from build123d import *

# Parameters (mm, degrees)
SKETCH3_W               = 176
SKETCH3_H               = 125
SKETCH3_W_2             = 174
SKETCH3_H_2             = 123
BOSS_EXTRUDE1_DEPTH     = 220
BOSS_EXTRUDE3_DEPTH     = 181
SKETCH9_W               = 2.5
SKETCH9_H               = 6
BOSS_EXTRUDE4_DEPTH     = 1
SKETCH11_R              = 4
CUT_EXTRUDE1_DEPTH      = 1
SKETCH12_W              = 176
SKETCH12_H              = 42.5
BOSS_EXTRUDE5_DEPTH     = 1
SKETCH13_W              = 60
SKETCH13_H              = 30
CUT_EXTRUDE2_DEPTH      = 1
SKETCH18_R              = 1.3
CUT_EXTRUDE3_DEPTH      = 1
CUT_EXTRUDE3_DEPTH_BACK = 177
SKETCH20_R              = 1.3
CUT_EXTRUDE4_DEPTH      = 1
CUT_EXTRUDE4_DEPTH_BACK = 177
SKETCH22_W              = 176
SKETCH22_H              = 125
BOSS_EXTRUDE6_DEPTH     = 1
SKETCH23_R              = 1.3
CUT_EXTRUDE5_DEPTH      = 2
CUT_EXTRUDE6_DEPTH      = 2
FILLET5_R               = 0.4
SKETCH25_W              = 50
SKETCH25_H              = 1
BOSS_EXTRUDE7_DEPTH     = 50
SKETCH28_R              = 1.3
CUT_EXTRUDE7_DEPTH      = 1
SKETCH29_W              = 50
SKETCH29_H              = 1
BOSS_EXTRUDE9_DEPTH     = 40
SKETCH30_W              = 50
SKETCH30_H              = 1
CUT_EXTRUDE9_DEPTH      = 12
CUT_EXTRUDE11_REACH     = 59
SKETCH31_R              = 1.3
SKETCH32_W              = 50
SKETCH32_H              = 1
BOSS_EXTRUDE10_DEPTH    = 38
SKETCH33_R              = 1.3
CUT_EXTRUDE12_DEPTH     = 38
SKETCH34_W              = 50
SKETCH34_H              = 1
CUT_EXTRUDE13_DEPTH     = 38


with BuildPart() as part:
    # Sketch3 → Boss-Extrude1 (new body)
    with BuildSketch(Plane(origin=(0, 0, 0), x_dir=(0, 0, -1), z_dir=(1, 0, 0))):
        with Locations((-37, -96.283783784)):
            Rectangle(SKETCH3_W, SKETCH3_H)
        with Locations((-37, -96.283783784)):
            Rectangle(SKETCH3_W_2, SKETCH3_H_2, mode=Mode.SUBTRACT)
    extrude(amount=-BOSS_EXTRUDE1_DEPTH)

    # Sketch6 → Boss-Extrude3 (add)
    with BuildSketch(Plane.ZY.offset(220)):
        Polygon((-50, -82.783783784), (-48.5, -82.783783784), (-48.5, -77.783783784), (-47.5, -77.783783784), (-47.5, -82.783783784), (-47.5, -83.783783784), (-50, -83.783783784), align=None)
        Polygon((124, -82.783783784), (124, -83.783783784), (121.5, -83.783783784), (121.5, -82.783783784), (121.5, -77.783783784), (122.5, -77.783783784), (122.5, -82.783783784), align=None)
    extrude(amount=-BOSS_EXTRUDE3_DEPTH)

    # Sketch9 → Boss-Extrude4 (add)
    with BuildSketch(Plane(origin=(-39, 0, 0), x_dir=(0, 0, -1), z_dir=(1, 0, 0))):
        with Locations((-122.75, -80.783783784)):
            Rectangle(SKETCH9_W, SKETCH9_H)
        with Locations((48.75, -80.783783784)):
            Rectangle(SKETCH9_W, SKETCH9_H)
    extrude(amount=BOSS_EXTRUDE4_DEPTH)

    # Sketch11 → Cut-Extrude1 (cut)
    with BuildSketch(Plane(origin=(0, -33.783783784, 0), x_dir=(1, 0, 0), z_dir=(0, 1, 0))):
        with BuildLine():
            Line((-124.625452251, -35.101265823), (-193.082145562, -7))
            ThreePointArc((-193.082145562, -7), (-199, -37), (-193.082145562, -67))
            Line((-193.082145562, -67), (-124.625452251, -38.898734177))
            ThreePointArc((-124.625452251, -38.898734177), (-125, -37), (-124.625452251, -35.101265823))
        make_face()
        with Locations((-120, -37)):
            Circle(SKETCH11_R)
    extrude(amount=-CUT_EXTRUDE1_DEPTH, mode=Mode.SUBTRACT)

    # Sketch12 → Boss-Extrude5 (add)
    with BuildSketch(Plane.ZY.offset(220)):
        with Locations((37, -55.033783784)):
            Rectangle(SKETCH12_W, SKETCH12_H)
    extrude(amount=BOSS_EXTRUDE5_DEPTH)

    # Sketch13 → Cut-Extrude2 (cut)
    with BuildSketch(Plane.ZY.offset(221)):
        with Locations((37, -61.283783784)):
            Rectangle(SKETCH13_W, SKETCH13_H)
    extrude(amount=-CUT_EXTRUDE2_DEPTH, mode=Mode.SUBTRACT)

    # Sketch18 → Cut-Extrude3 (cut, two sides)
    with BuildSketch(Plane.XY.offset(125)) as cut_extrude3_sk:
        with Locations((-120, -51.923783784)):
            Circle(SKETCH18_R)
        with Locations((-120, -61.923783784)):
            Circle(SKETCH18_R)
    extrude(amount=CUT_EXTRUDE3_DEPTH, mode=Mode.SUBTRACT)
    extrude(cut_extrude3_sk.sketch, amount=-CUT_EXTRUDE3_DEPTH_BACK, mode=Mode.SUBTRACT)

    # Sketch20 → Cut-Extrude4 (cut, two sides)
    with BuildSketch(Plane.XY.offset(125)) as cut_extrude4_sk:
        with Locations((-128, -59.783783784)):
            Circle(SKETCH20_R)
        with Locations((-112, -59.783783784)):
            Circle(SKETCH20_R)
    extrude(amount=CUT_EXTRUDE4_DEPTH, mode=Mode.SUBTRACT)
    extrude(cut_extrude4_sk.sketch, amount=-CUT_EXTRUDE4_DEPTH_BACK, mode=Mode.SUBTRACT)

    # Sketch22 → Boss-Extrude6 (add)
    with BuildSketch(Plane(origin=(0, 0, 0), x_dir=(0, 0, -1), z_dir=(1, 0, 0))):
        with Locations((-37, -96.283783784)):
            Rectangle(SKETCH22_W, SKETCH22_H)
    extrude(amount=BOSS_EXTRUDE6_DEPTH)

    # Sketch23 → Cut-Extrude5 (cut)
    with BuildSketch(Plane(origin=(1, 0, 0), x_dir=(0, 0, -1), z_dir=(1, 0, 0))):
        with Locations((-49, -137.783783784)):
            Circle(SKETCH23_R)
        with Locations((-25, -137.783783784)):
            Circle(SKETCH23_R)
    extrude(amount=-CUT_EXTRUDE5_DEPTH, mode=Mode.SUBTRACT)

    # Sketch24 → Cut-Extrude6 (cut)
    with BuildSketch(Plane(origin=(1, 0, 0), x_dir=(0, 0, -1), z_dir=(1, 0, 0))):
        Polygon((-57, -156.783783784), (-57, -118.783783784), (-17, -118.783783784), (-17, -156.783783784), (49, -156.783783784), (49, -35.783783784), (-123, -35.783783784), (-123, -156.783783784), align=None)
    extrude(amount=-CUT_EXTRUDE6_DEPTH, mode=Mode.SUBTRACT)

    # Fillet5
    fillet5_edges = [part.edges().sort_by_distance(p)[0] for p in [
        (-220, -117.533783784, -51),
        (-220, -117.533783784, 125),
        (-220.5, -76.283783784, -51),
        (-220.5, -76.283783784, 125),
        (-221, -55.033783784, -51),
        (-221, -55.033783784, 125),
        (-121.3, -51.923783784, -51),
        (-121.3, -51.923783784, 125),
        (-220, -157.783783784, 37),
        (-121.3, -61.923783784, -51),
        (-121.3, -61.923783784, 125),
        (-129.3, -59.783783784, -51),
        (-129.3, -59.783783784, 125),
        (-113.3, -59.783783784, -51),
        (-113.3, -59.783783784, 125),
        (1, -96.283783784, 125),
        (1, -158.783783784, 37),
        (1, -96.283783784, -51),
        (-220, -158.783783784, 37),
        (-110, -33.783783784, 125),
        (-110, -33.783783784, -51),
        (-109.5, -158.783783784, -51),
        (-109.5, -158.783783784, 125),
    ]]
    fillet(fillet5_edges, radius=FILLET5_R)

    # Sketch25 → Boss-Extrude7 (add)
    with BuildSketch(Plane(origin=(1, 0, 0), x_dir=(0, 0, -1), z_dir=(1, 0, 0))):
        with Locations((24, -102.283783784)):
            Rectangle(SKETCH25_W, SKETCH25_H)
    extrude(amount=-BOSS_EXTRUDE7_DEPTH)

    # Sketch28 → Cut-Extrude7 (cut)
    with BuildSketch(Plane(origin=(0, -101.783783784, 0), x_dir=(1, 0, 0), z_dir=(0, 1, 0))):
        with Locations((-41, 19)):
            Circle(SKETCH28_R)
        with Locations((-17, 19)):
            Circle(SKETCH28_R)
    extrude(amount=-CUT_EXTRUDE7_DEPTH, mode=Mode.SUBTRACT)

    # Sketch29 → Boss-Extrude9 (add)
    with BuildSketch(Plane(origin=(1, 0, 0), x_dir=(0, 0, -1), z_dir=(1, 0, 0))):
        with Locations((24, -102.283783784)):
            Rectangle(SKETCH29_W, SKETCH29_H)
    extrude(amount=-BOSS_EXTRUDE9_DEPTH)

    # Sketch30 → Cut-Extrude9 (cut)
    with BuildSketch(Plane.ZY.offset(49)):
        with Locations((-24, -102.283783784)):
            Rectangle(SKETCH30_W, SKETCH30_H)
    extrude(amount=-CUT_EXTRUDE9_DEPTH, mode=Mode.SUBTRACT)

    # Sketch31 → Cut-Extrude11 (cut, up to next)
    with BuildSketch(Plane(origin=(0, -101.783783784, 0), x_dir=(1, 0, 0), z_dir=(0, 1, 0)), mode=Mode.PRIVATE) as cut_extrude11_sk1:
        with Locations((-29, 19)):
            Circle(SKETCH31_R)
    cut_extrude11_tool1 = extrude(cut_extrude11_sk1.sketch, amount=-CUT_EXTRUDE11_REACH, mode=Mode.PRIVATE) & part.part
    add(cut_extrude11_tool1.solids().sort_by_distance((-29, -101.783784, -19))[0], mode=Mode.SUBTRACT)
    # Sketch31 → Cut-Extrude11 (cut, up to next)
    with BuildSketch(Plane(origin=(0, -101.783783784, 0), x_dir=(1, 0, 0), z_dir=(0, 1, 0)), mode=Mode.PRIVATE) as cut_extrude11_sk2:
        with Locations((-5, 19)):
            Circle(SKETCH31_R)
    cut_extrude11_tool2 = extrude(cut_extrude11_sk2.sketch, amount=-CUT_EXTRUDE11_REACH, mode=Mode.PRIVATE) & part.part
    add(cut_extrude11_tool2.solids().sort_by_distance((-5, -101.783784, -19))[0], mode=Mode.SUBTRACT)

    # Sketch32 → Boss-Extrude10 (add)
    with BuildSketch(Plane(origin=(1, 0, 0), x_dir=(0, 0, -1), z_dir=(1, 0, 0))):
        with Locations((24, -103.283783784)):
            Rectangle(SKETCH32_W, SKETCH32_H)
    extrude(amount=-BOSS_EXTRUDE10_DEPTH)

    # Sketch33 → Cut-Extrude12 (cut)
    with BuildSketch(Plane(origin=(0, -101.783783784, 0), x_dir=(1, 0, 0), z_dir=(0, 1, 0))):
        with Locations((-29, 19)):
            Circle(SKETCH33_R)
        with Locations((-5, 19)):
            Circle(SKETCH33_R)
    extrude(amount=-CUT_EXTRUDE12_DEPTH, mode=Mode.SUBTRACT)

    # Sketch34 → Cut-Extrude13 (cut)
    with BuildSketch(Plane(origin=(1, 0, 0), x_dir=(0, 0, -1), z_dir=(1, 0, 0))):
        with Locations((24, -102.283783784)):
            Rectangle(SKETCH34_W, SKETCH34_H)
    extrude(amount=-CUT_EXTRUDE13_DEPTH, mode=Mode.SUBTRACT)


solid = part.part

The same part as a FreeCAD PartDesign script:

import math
import FreeCAD as App
import Part
import Sketcher


def edges_at(feature, points):
    """Names of the edges that pass closest to the given points."""
    edges = feature.Shape.Edges
    near = lambda p: min(range(len(edges)), key=lambda i: edges[i].distToShape(Part.Vertex(*p))[0])
    return sorted({f"Edge{near(p) + 1}" for p in points})


def add_polygon(sketch, points):
    """Adds a closed chain of lines whose ends are joined by coincident constraints."""
    first, n = sketch.GeometryCount, len(points)
    for a, b in zip(points, points[1:] + points[:1]):
        sketch.addGeometry(Part.LineSegment(App.Vector(*a, 0), App.Vector(*b, 0)), False)
    for i in range(n):
        sketch.addConstraint(Sketcher.Constraint("Coincident", first + i, 2, first + (i + 1) % n, 1))

doc = App.newDocument("Part")
body = doc.addObject("PartDesign::Body", "Body")

sketch1 = doc.addObject("Sketcher::SketchObject", "Sketch")
body.addObject(sketch1)
sketch1.AttachmentSupport = (doc.YZ_Plane, [""])
sketch1.MapMode = "FlatFace"
add_polygon(sketch1, [(-34, 125), (-159, 125), (-159, -51), (-34, -51)])
add_polygon(sketch1, [(-158, -50), (-158, 124), (-35, 124), (-35, -50)])
sketch1.addConstraint(Sketcher.Constraint("Horizontal", 0))
sketch1.addConstraint(Sketcher.Constraint("Vertical", 1))
sketch1.addConstraint(Sketcher.Constraint("Horizontal", 2))
sketch1.addConstraint(Sketcher.Constraint("Vertical", 3))
sketch1.addConstraint(Sketcher.Constraint("Vertical", 4))
sketch1.addConstraint(Sketcher.Constraint("Horizontal", 5))
sketch1.addConstraint(Sketcher.Constraint("Vertical", 6))
sketch1.addConstraint(Sketcher.Constraint("Horizontal", 7))
sketch1.addConstraint(Sketcher.Constraint("DistanceX", 0, 2, 0, 1, 125.0))
sketch1.addConstraint(Sketcher.Constraint("DistanceX", 5, 1, 5, 2, 123.0))
sketch1.addConstraint(Sketcher.Constraint("DistanceY", 1, 2, 1, 1, 176.0))
sketch1.addConstraint(Sketcher.Constraint("DistanceY", 4, 1, 4, 2, 174.0))
sketch1.addConstraint(Sketcher.Constraint("DistanceY", -1, 1, 0, 2, 125.0))
sketch1.addConstraint(Sketcher.Constraint("DistanceY", -1, 1, 4, 2, 124.0))
sketch1.addConstraint(Sketcher.Constraint("DistanceX", 0, 2, 4, 2, 1.0))
sketch1.addConstraint(Sketcher.Constraint("DistanceX", 0, 2, -1, 1, 158.783784))
pad1 = doc.addObject("PartDesign::Pad", "Pad")
body.addObject(pad1)
pad1.Profile = sketch1
pad1.Length = 220
pad1.Reversed = True

sketch2 = doc.addObject("Sketcher::SketchObject", "Sketch001")
body.addObject(sketch2)
sketch2.AttachmentSupport = (doc.YZ_Plane, [""])
sketch2.MapMode = "FlatFace"
sketch2.AttachmentOffset = App.Placement(App.Vector(0, 0, -220), App.Rotation())
add_polygon(sketch2, [(-82.8, -48.5), (-82.8, -50), (-83.8, -50), (-83.8, -47.5), (-77.8, -47.5), (-77.8, -48.5)])
add_polygon(sketch2, [(-83.8, 124), (-82.8, 124), (-82.8, 122.5), (-77.8, 122.5), (-77.8, 121.5), (-83.8, 121.5)])
sketch2.addConstraint(Sketcher.Constraint("Vertical", 0))
sketch2.addConstraint(Sketcher.Constraint("Horizontal", 1))
sketch2.addConstraint(Sketcher.Constraint("Vertical", 2))
sketch2.addConstraint(Sketcher.Constraint("Horizontal", 3))
sketch2.addConstraint(Sketcher.Constraint("Vertical", 4))
sketch2.addConstraint(Sketcher.Constraint("Horizontal", 5))
sketch2.addConstraint(Sketcher.Constraint("Horizontal", 6))
sketch2.addConstraint(Sketcher.Constraint("Vertical", 7))
sketch2.addConstraint(Sketcher.Constraint("Horizontal", 8))
sketch2.addConstraint(Sketcher.Constraint("Vertical", 9))
sketch2.addConstraint(Sketcher.Constraint("Horizontal", 10))
sketch2.addConstraint(Sketcher.Constraint("Vertical", 11))
sketch2.addConstraint(Sketcher.Constraint("Vertical", 5, 2, 6, 2))
sketch2.addConstraint(Sketcher.Constraint("Vertical", 4, 2, 8, 2))
sketch2.addConstraint(Sketcher.Constraint("Vertical", 2, 2, 10, 2))
sketch2.addConstraint(Sketcher.Constraint("Equal", 6, 4))
sketch2.addConstraint(Sketcher.Constraint("Equal", 0, 7))
sketch2.addConstraint(Sketcher.Constraint("Equal", 4, 9))
sketch2.addConstraint(Sketcher.Constraint("DistanceX", 1, 2, 1, 1, 1.0))
sketch2.addConstraint(Sketcher.Constraint("DistanceX", 3, 1, 3, 2, 6.0))
sketch2.addConstraint(Sketcher.Constraint("DistanceY", 0, 2, 0, 1, 1.5))
sketch2.addConstraint(Sketcher.Constraint("DistanceY", 0, 2, -1, 1, 50.0))
sketch2.addConstraint(Sketcher.Constraint("DistanceY", -1, 1, 6, 2, 124.0))
sketch2.addConstraint(Sketcher.Constraint("DistanceX", 0, 2, -1, 1, 82.783784))
pad2 = doc.addObject("PartDesign::Pad", "Pad001")
body.addObject(pad2)
pad2.Profile = sketch2
pad2.Length = 181

sketch3 = doc.addObject("Sketcher::SketchObject", "Sketch002")
body.addObject(sketch3)
sketch3.AttachmentSupport = (doc.YZ_Plane, [""])
sketch3.MapMode = "FlatFace"
sketch3.AttachmentOffset = App.Placement(App.Vector(0, 0, -39), App.Rotation())
add_polygon(sketch3, [(-77.8, 124), (-83.8, 124), (-83.8, 121.5), (-77.8, 121.5)])
add_polygon(sketch3, [(-77.8, -47.5), (-83.8, -47.5), (-83.8, -50), (-77.8, -50)])
sketch3.addConstraint(Sketcher.Constraint("Horizontal", 0))
sketch3.addConstraint(Sketcher.Constraint("Vertical", 1))
sketch3.addConstraint(Sketcher.Constraint("Horizontal", 2))
sketch3.addConstraint(Sketcher.Constraint("Vertical", 3))
sketch3.addConstraint(Sketcher.Constraint("Horizontal", 4))
sketch3.addConstraint(Sketcher.Constraint("Vertical", 5))
sketch3.addConstraint(Sketcher.Constraint("Horizontal", 6))
sketch3.addConstraint(Sketcher.Constraint("Vertical", 7))
sketch3.addConstraint(Sketcher.Constraint("Vertical", 1, 2, 4, 2))
sketch3.addConstraint(Sketcher.Constraint("Vertical", 3, 2, 6, 2))
sketch3.addConstraint(Sketcher.Constraint("Equal", 3, 5))
sketch3.addConstraint(Sketcher.Constraint("DistanceX", 0, 2, 0, 1, 6.0))
sketch3.addConstraint(Sketcher.Constraint("DistanceY", 1, 2, 1, 1, 2.5))
sketch3.addConstraint(Sketcher.Constraint("DistanceY", -1, 1, 0, 2, 124.0))
sketch3.addConstraint(Sketcher.Constraint("DistanceY", 5, 2, -1, 1, 50.0))
sketch3.addConstraint(Sketcher.Constraint("DistanceX", 0, 2, -1, 1, 83.783784))
pad3 = doc.addObject("PartDesign::Pad", "Pad002")
body.addObject(pad3)
pad3.Profile = sketch3
pad3.Length = 1

sketch4 = doc.addObject("Sketcher::SketchObject", "Sketch003")
body.addObject(sketch4)
sketch4.AttachmentSupport = (doc.XZ_Plane, [""])
sketch4.MapMode = "FlatFace"
sketch4.AttachmentOffset = App.Placement(App.Vector(0, 0, 33.783784), App.Rotation())
sketch4.addGeometry(Part.LineSegment(App.Vector(-124.6, 35.1, 0), App.Vector(-193.1, 7, 0)), False)
sketch4.addGeometry(Part.ArcOfCircle(Part.Circle(App.Vector(-120, 37, 0), App.Vector(0, 0, 1), 79), math.radians(158), math.radians(202)), False)
sketch4.addGeometry(Part.LineSegment(App.Vector(-193.1, 67, 0), App.Vector(-124.6, 38.9, 0)), False)
sketch4.addGeometry(Part.ArcOfCircle(Part.Circle(App.Vector(-120, 37, 0), App.Vector(0, 0, 1), 5), math.radians(158), math.radians(202)), False)
sketch4.addGeometry(Part.Circle(App.Vector(-120, 37, 0), App.Vector(0, 0, 1), 4), False)
sketch4.addConstraint(Sketcher.Constraint("Coincident", 0, 2, 1, 2))
sketch4.addConstraint(Sketcher.Constraint("Coincident", 1, 1, 2, 1))
sketch4.addConstraint(Sketcher.Constraint("Coincident", 2, 2, 3, 1))
sketch4.addConstraint(Sketcher.Constraint("Coincident", 3, 2, 0, 1))
sketch4.addConstraint(Sketcher.Constraint("Coincident", 3, 3, 1, 3))
sketch4.addConstraint(Sketcher.Constraint("Coincident", 4, 3, 1, 3))
sketch4.addConstraint(Sketcher.Constraint("Vertical", 0, 2, 1, 1))
sketch4.addConstraint(Sketcher.Constraint("Vertical", 2, 2, 3, 2))
sketch4.addConstraint(Sketcher.Constraint("Diameter", 4, 8.0))
sketch4.addConstraint(Sketcher.Constraint("Radius", 1, 79.0))
sketch4.addConstraint(Sketcher.Constraint("Radius", 3, 5.0))
sketch4.addConstraint(Sketcher.Constraint("DistanceX", 1, 3, -1, 1, 120.0))
sketch4.addConstraint(Sketcher.Constraint("DistanceY", -1, 1, 1, 3, 37.0))
sketch4.addConstraint(Sketcher.Constraint("DistanceY", -1, 1, 0, 2, 7.0))
sketch4.addConstraint(Sketcher.Constraint("DistanceY", 3, 2, 2, 2, 3.797468))
pocket1 = doc.addObject("PartDesign::Pocket", "Pocket")
body.addObject(pocket1)
pocket1.Profile = sketch4
pocket1.Length = 1
pocket1.Reversed = True

sketch5 = doc.addObject("Sketcher::SketchObject", "Sketch004")
body.addObject(sketch5)
sketch5.AttachmentSupport = (doc.YZ_Plane, [""])
sketch5.MapMode = "FlatFace"
sketch5.AttachmentOffset = App.Placement(App.Vector(0, 0, -220), App.Rotation())
add_polygon(sketch5, [(-34, -51), (-76, -51), (-76, 125), (-34, 125)])
sketch5.addConstraint(Sketcher.Constraint("Horizontal", 0))
sketch5.addConstraint(Sketcher.Constraint("Vertical", 1))
sketch5.addConstraint(Sketcher.Constraint("Horizontal", 2))
sketch5.addConstraint(Sketcher.Constraint("Vertical", 3))
sketch5.addConstraint(Sketcher.Constraint("DistanceY", 1, 1, 1, 2, 176.0))
sketch5.addConstraint(Sketcher.Constraint("DistanceX", 0, 2, 0, 1, 42.5))
sketch5.addConstraint(Sketcher.Constraint("DistanceY", 0, 2, -1, 1, 51.0))
sketch5.addConstraint(Sketcher.Constraint("DistanceX", 0, 2, -1, 1, 76.283784))
pad4 = doc.addObject("PartDesign::Pad", "Pad003")
body.addObject(pad4)
pad4.Profile = sketch5
pad4.Length = 1
pad4.Reversed = True

sketch6 = doc.addObject("Sketcher::SketchObject", "Sketch005")
body.addObject(sketch6)
sketch6.AttachmentSupport = (doc.YZ_Plane, [""])
sketch6.MapMode = "FlatFace"
sketch6.AttachmentOffset = App.Placement(App.Vector(0, 0, -221), App.Rotation())
add_polygon(sketch6, [(-46, 7), (-76, 7), (-76, 67), (-46, 67)])
sketch6.addConstraint(Sketcher.Constraint("Horizontal", 0))
sketch6.addConstraint(Sketcher.Constraint("Vertical", 1))
sketch6.addConstraint(Sketcher.Constraint("Horizontal", 2))
sketch6.addConstraint(Sketcher.Constraint("Vertical", 3))
sketch6.addConstraint(Sketcher.Constraint("DistanceX", 0, 2, 0, 1, 30.0))
sketch6.addConstraint(Sketcher.Constraint("DistanceY", 1, 1, 1, 2, 60.0))
sketch6.addConstraint(Sketcher.Constraint("DistanceY", -1, 1, 0, 2, 7.0))
sketch6.addConstraint(Sketcher.Constraint("DistanceX", 0, 2, -1, 1, 76.283784))
pocket2 = doc.addObject("PartDesign::Pocket", "Pocket001")
body.addObject(pocket2)
pocket2.Profile = sketch6
pocket2.Length = 1
pocket2.Reversed = True

sketch7 = doc.addObject("Sketcher::SketchObject", "Sketch006")
body.addObject(sketch7)
sketch7.AttachmentSupport = (doc.XY_Plane, [""])
sketch7.MapMode = "FlatFace"
sketch7.AttachmentOffset = App.Placement(App.Vector(0, 0, 125), App.Rotation())
sketch7.addGeometry(Part.Circle(App.Vector(-120, -51.9, 0), App.Vector(0, 0, 1), 1.3), False)
sketch7.addGeometry(Part.Circle(App.Vector(-120, -61.9, 0), App.Vector(0, 0, 1), 1.3), False)
sketch7.addConstraint(Sketcher.Constraint("Equal", 0, 1))
sketch7.addConstraint(Sketcher.Constraint("Vertical", 0, 3, 1, 3))
sketch7.addConstraint(Sketcher.Constraint("Diameter", 0, 2.6))
sketch7.addConstraint(Sketcher.Constraint("DistanceX", 0, 3, -1, 1, 120.0))
sketch7.addConstraint(Sketcher.Constraint("DistanceY", 1, 3, 0, 3, 10.0))
sketch7.addConstraint(Sketcher.Constraint("DistanceY", 0, 3, -1, 1, 51.923784))
pocket3 = doc.addObject("PartDesign::Pocket", "Pocket002")
body.addObject(pocket3)
pocket3.Profile = sketch7
pocket3.Type = "ThroughAll"
pocket3.Midplane = True

sketch8 = doc.addObject("Sketcher::SketchObject", "Sketch007")
body.addObject(sketch8)
sketch8.AttachmentSupport = (doc.XY_Plane, [""])
sketch8.MapMode = "FlatFace"
sketch8.AttachmentOffset = App.Placement(App.Vector(0, 0, 125), App.Rotation())
sketch8.addGeometry(Part.Circle(App.Vector(-128, -59.8, 0), App.Vector(0, 0, 1), 1.3), False)
sketch8.addGeometry(Part.Circle(App.Vector(-112, -59.8, 0), App.Vector(0, 0, 1), 1.3), False)
sketch8.addConstraint(Sketcher.Constraint("Equal", 0, 1))
sketch8.addConstraint(Sketcher.Constraint("Horizontal", 0, 3, 1, 3))
sketch8.addConstraint(Sketcher.Constraint("Diameter", 0, 2.6))
sketch8.addConstraint(Sketcher.Constraint("DistanceX", 0, 3, -1, 1, 128.0))
sketch8.addConstraint(Sketcher.Constraint("DistanceX", 1, 3, -1, 1, 112.0))
sketch8.addConstraint(Sketcher.Constraint("DistanceY", 0, 3, -1, 1, 59.783784))
pocket4 = doc.addObject("PartDesign::Pocket", "Pocket003")
body.addObject(pocket4)
pocket4.Profile = sketch8
pocket4.Type = "ThroughAll"
pocket4.Midplane = True

sketch9 = doc.addObject("Sketcher::SketchObject", "Sketch008")
body.addObject(sketch9)
sketch9.AttachmentSupport = (doc.YZ_Plane, [""])
sketch9.MapMode = "FlatFace"
add_polygon(sketch9, [(-34, 125), (-159, 125), (-159, -51), (-34, -51)])
sketch9.addConstraint(Sketcher.Constraint("Horizontal", 0))
sketch9.addConstraint(Sketcher.Constraint("Vertical", 1))
sketch9.addConstraint(Sketcher.Constraint("Horizontal", 2))
sketch9.addConstraint(Sketcher.Constraint("Vertical", 3))
sketch9.addConstraint(Sketcher.Constraint("DistanceX", 0, 2, 0, 1, 125.0))
sketch9.addConstraint(Sketcher.Constraint("DistanceY", 1, 2, 1, 1, 176.0))
sketch9.addConstraint(Sketcher.Constraint("DistanceY", -1, 1, 0, 2, 125.0))
sketch9.addConstraint(Sketcher.Constraint("DistanceX", 0, 2, -1, 1, 158.783784))
pad5 = doc.addObject("PartDesign::Pad", "Pad004")
body.addObject(pad5)
pad5.Profile = sketch9
pad5.Length = 1

sketch10 = doc.addObject("Sketcher::SketchObject", "Sketch009")
body.addObject(sketch10)
sketch10.AttachmentSupport = (doc.YZ_Plane, [""])
sketch10.MapMode = "FlatFace"
sketch10.AttachmentOffset = App.Placement(App.Vector(0, 0, 1), App.Rotation())
sketch10.addGeometry(Part.Circle(App.Vector(-137.8, 49, 0), App.Vector(0, 0, 1), 1.3), False)
sketch10.addGeometry(Part.Circle(App.Vector(-137.8, 25, 0), App.Vector(0, 0, 1), 1.3), False)
sketch10.addConstraint(Sketcher.Constraint("Equal", 0, 1))
sketch10.addConstraint(Sketcher.Constraint("Vertical", 0, 3, 1, 3))
sketch10.addConstraint(Sketcher.Constraint("Diameter", 0, 2.6))
sketch10.addConstraint(Sketcher.Constraint("DistanceY", -1, 1, 0, 3, 49.0))
sketch10.addConstraint(Sketcher.Constraint("DistanceY", -1, 1, 1, 3, 25.0))
sketch10.addConstraint(Sketcher.Constraint("DistanceX", 0, 3, -1, 1, 137.783784))
pocket5 = doc.addObject("PartDesign::Pocket", "Pocket004")
body.addObject(pocket5)
pocket5.Profile = sketch10
pocket5.Length = 2

sketch11 = doc.addObject("Sketcher::SketchObject", "Sketch010")
body.addObject(sketch11)
sketch11.AttachmentSupport = (doc.YZ_Plane, [""])
sketch11.MapMode = "FlatFace"
sketch11.AttachmentOffset = App.Placement(App.Vector(0, 0, 1), App.Rotation())
add_polygon(sketch11, [(-157, 57), (-119, 57), (-119, 17), (-157, 17), (-157, -49), (-36, -49), (-36, 123), (-157, 123)])
sketch11.addConstraint(Sketcher.Constraint("Horizontal", 0))
sketch11.addConstraint(Sketcher.Constraint("Vertical", 1))
sketch11.addConstraint(Sketcher.Constraint("Horizontal", 2))
sketch11.addConstraint(Sketcher.Constraint("Vertical", 3))
sketch11.addConstraint(Sketcher.Constraint("Horizontal", 4))
sketch11.addConstraint(Sketcher.Constraint("Vertical", 5))
sketch11.addConstraint(Sketcher.Constraint("Horizontal", 6))
sketch11.addConstraint(Sketcher.Constraint("Vertical", 7))
sketch11.addConstraint(Sketcher.Constraint("Vertical", 3, 2, 6, 2))
sketch11.addConstraint(Sketcher.Constraint("Equal", 3, 7))
sketch11.addConstraint(Sketcher.Constraint("DistanceX", 0, 1, 0, 2, 38.0))
sketch11.addConstraint(Sketcher.Constraint("DistanceX", 4, 1, 4, 2, 121.0))
sketch11.addConstraint(Sketcher.Constraint("DistanceY", 1, 2, 1, 1, 40.0))
sketch11.addConstraint(Sketcher.Constraint("DistanceY", 3, 2, 3, 1, 66.0))
sketch11.addConstraint(Sketcher.Constraint("DistanceY", -1, 1, 0, 2, 57.0))
sketch11.addConstraint(Sketcher.Constraint("DistanceX", 0, 2, -1, 1, 118.783784))
pocket6 = doc.addObject("PartDesign::Pocket", "Pocket005")
body.addObject(pocket6)
pocket6.Profile = sketch11
pocket6.Length = 2
doc.recompute()

fillet = doc.addObject("PartDesign::Fillet", "Fillet")
body.addObject(fillet)
fillet.Base = (pocket6, edges_at(pocket6, [
    (-220, -117.534, -51),
    (-220, -117.534, 125),
    (-220.5, -76.284, -51),
    (-220.5, -76.284, 125),
    (-221, -55.034, -51),
    (-221, -55.034, 125),
    (-121.3, -51.924, -51),
    (-121.3, -51.924, 125),
    (-220, -157.784, 37),
    (-121.3, -61.924, -51),
    (-121.3, -61.924, 125),
    (-129.3, -59.784, -51),
    (-129.3, -59.784, 125),
    (-113.3, -59.784, -51),
    (-113.3, -59.784, 125),
    (1, -96.284, 125),
    (1, -158.784, 37),
    (1, -96.284, -51),
    (-220, -158.784, 37),
    (-110, -33.784, 125),
    (-110, -33.784, -51),
    (-109.5, -158.784, -51),
    (-109.5, -158.784, 125),
]))
fillet.Radius = 0.4

sketch12 = doc.addObject("Sketcher::SketchObject", "Sketch011")
body.addObject(sketch12)
sketch12.AttachmentSupport = (doc.YZ_Plane, [""])
sketch12.MapMode = "FlatFace"
sketch12.AttachmentOffset = App.Placement(App.Vector(0, 0, 1), App.Rotation())
add_polygon(sketch12, [(-101.8, 1), (-102.8, 1), (-102.8, -49), (-101.8, -49)])
sketch12.addConstraint(Sketcher.Constraint("Horizontal", 0))
sketch12.addConstraint(Sketcher.Constraint("Vertical", 1))
sketch12.addConstraint(Sketcher.Constraint("Horizontal", 2))
sketch12.addConstraint(Sketcher.Constraint("Vertical", 3))
sketch12.addConstraint(Sketcher.Constraint("DistanceX", 0, 2, 0, 1, 1.0))
sketch12.addConstraint(Sketcher.Constraint("DistanceY", 1, 2, 1, 1, 50.0))
sketch12.addConstraint(Sketcher.Constraint("DistanceY", -1, 1, 0, 2, 1.0))
sketch12.addConstraint(Sketcher.Constraint("DistanceX", 0, 2, -1, 1, 102.783784))
pad6 = doc.addObject("PartDesign::Pad", "Pad005")
body.addObject(pad6)
pad6.Profile = sketch12
pad6.Length = 50
pad6.Reversed = True

sketch13 = doc.addObject("Sketcher::SketchObject", "Sketch012")
body.addObject(sketch13)
sketch13.AttachmentSupport = (doc.XZ_Plane, [""])
sketch13.MapMode = "FlatFace"
sketch13.AttachmentOffset = App.Placement(App.Vector(0, 0, 101.783784), App.Rotation())
sketch13.addGeometry(Part.Circle(App.Vector(-41, -19, 0), App.Vector(0, 0, 1), 1.3), False)
sketch13.addGeometry(Part.Circle(App.Vector(-17, -19, 0), App.Vector(0, 0, 1), 1.3), False)
sketch13.addConstraint(Sketcher.Constraint("Equal", 0, 1))
sketch13.addConstraint(Sketcher.Constraint("Horizontal", 0, 3, 1, 3))
sketch13.addConstraint(Sketcher.Constraint("Diameter", 0, 2.6))
sketch13.addConstraint(Sketcher.Constraint("DistanceX", 0, 3, -1, 1, 41.0))
sketch13.addConstraint(Sketcher.Constraint("DistanceY", 0, 3, -1, 1, 19.0))
sketch13.addConstraint(Sketcher.Constraint("DistanceX", 1, 3, -1, 1, 17.0))
pocket7 = doc.addObject("PartDesign::Pocket", "Pocket006")
body.addObject(pocket7)
pocket7.Profile = sketch13
pocket7.Length = 1
pocket7.Reversed = True

sketch14 = doc.addObject("Sketcher::SketchObject", "Sketch013")
body.addObject(sketch14)
sketch14.AttachmentSupport = (doc.YZ_Plane, [""])
sketch14.MapMode = "FlatFace"
sketch14.AttachmentOffset = App.Placement(App.Vector(0, 0, 1), App.Rotation())
add_polygon(sketch14, [(-101.8, 1), (-102.8, 1), (-102.8, -49), (-101.8, -49)])
sketch14.addConstraint(Sketcher.Constraint("Horizontal", 0))
sketch14.addConstraint(Sketcher.Constraint("Vertical", 1))
sketch14.addConstraint(Sketcher.Constraint("Horizontal", 2))
sketch14.addConstraint(Sketcher.Constraint("Vertical", 3))
sketch14.addConstraint(Sketcher.Constraint("DistanceX", 0, 2, 0, 1, 1.0))
sketch14.addConstraint(Sketcher.Constraint("DistanceY", 1, 2, 1, 1, 50.0))
sketch14.addConstraint(Sketcher.Constraint("DistanceY", -1, 1, 0, 2, 1.0))
sketch14.addConstraint(Sketcher.Constraint("DistanceX", 0, 2, -1, 1, 102.783784))
pad7 = doc.addObject("PartDesign::Pad", "Pad006")
body.addObject(pad7)
pad7.Profile = sketch14
pad7.Length = 40
pad7.Reversed = True

sketch15 = doc.addObject("Sketcher::SketchObject", "Sketch014")
body.addObject(sketch15)
sketch15.AttachmentSupport = (doc.YZ_Plane, [""])
sketch15.MapMode = "FlatFace"
sketch15.AttachmentOffset = App.Placement(App.Vector(0, 0, -49), App.Rotation())
add_polygon(sketch15, [(-101.8, -49), (-102.8, -49), (-102.8, 1), (-101.8, 1)])
sketch15.addConstraint(Sketcher.Constraint("Horizontal", 0))
sketch15.addConstraint(Sketcher.Constraint("Vertical", 1))
sketch15.addConstraint(Sketcher.Constraint("Horizontal", 2))
sketch15.addConstraint(Sketcher.Constraint("Vertical", 3))
sketch15.addConstraint(Sketcher.Constraint("DistanceX", 0, 2, 0, 1, 1.0))
sketch15.addConstraint(Sketcher.Constraint("DistanceY", 1, 1, 1, 2, 50.0))
sketch15.addConstraint(Sketcher.Constraint("DistanceY", 0, 2, -1, 1, 49.0))
sketch15.addConstraint(Sketcher.Constraint("DistanceX", 0, 2, -1, 1, 102.783784))
pocket8 = doc.addObject("PartDesign::Pocket", "Pocket007")
body.addObject(pocket8)
pocket8.Profile = sketch15
pocket8.Length = 12
pocket8.Reversed = True

sketch16 = doc.addObject("Sketcher::SketchObject", "Sketch015")
body.addObject(sketch16)
sketch16.AttachmentSupport = (doc.XZ_Plane, [""])
sketch16.MapMode = "FlatFace"
sketch16.AttachmentOffset = App.Placement(App.Vector(0, 0, 101.783784), App.Rotation())
sketch16.addGeometry(Part.Circle(App.Vector(-29, -19, 0), App.Vector(0, 0, 1), 1.3), False)
sketch16.addConstraint(Sketcher.Constraint("Diameter", 0, 2.6))
sketch16.addConstraint(Sketcher.Constraint("DistanceX", 0, 3, -1, 1, 29.0))
sketch16.addConstraint(Sketcher.Constraint("DistanceY", 0, 3, -1, 1, 19.0))
pocket9 = doc.addObject("PartDesign::Pocket", "Pocket008")
body.addObject(pocket9)
pocket9.Profile = sketch16
pocket9.Type = "UpToFirst"
pocket9.Reversed = True

sketch17 = doc.addObject("Sketcher::SketchObject", "Sketch016")
body.addObject(sketch17)
sketch17.AttachmentSupport = (doc.XZ_Plane, [""])
sketch17.MapMode = "FlatFace"
sketch17.AttachmentOffset = App.Placement(App.Vector(0, 0, 101.783784), App.Rotation())
sketch17.addGeometry(Part.Circle(App.Vector(-5, -19, 0), App.Vector(0, 0, 1), 1.3), False)
sketch17.addConstraint(Sketcher.Constraint("Diameter", 0, 2.6))
sketch17.addConstraint(Sketcher.Constraint("DistanceX", 0, 3, -1, 1, 5.0))
sketch17.addConstraint(Sketcher.Constraint("DistanceY", 0, 3, -1, 1, 19.0))
pocket10 = doc.addObject("PartDesign::Pocket", "Pocket009")
body.addObject(pocket10)
pocket10.Profile = sketch17
pocket10.Type = "UpToFirst"
pocket10.Reversed = True

sketch18 = doc.addObject("Sketcher::SketchObject", "Sketch017")
body.addObject(sketch18)
sketch18.AttachmentSupport = (doc.YZ_Plane, [""])
sketch18.MapMode = "FlatFace"
sketch18.AttachmentOffset = App.Placement(App.Vector(0, 0, 1), App.Rotation())
add_polygon(sketch18, [(-102.8, 1), (-103.8, 1), (-103.8, -49), (-102.8, -49)])
sketch18.addConstraint(Sketcher.Constraint("Horizontal", 0))
sketch18.addConstraint(Sketcher.Constraint("Vertical", 1))
sketch18.addConstraint(Sketcher.Constraint("Horizontal", 2))
sketch18.addConstraint(Sketcher.Constraint("Vertical", 3))
sketch18.addConstraint(Sketcher.Constraint("DistanceX", 0, 2, 0, 1, 1.0))
sketch18.addConstraint(Sketcher.Constraint("DistanceY", 1, 2, 1, 1, 50.0))
sketch18.addConstraint(Sketcher.Constraint("DistanceY", -1, 1, 0, 2, 1.0))
sketch18.addConstraint(Sketcher.Constraint("DistanceX", 0, 2, -1, 1, 103.783784))
pad8 = doc.addObject("PartDesign::Pad", "Pad007")
body.addObject(pad8)
pad8.Profile = sketch18
pad8.Length = 38
pad8.Reversed = True

sketch19 = doc.addObject("Sketcher::SketchObject", "Sketch018")
body.addObject(sketch19)
sketch19.AttachmentSupport = (doc.XZ_Plane, [""])
sketch19.MapMode = "FlatFace"
sketch19.AttachmentOffset = App.Placement(App.Vector(0, 0, 101.783784), App.Rotation())
sketch19.addGeometry(Part.Circle(App.Vector(-29, -19, 0), App.Vector(0, 0, 1), 1.3), False)
sketch19.addGeometry(Part.Circle(App.Vector(-5, -19, 0), App.Vector(0, 0, 1), 1.3), False)
sketch19.addConstraint(Sketcher.Constraint("Equal", 0, 1))
sketch19.addConstraint(Sketcher.Constraint("Horizontal", 0, 3, 1, 3))
sketch19.addConstraint(Sketcher.Constraint("Diameter", 0, 2.6))
sketch19.addConstraint(Sketcher.Constraint("DistanceX", 0, 3, -1, 1, 29.0))
sketch19.addConstraint(Sketcher.Constraint("DistanceY", 0, 3, -1, 1, 19.0))
sketch19.addConstraint(Sketcher.Constraint("DistanceX", 1, 3, -1, 1, 5.0))
pocket11 = doc.addObject("PartDesign::Pocket", "Pocket010")
body.addObject(pocket11)
pocket11.Profile = sketch19
pocket11.Length = 38
pocket11.Reversed = True

sketch20 = doc.addObject("Sketcher::SketchObject", "Sketch019")
body.addObject(sketch20)
sketch20.AttachmentSupport = (doc.YZ_Plane, [""])
sketch20.MapMode = "FlatFace"
sketch20.AttachmentOffset = App.Placement(App.Vector(0, 0, 1), App.Rotation())
add_polygon(sketch20, [(-101.8, 1), (-102.8, 1), (-102.8, -49), (-101.8, -49)])
sketch20.addConstraint(Sketcher.Constraint("Horizontal", 0))
sketch20.addConstraint(Sketcher.Constraint("Vertical", 1))
sketch20.addConstraint(Sketcher.Constraint("Horizontal", 2))
sketch20.addConstraint(Sketcher.Constraint("Vertical", 3))
sketch20.addConstraint(Sketcher.Constraint("DistanceX", 0, 2, 0, 1, 1.0))
sketch20.addConstraint(Sketcher.Constraint("DistanceY", 1, 2, 1, 1, 50.0))
sketch20.addConstraint(Sketcher.Constraint("DistanceY", -1, 1, 0, 2, 1.0))
sketch20.addConstraint(Sketcher.Constraint("DistanceX", 0, 2, -1, 1, 102.783784))
pocket12 = doc.addObject("PartDesign::Pocket", "Pocket011")
body.addObject(pocket12)
pocket12.Profile = sketch20
pocket12.Length = 38

doc.recompute()
